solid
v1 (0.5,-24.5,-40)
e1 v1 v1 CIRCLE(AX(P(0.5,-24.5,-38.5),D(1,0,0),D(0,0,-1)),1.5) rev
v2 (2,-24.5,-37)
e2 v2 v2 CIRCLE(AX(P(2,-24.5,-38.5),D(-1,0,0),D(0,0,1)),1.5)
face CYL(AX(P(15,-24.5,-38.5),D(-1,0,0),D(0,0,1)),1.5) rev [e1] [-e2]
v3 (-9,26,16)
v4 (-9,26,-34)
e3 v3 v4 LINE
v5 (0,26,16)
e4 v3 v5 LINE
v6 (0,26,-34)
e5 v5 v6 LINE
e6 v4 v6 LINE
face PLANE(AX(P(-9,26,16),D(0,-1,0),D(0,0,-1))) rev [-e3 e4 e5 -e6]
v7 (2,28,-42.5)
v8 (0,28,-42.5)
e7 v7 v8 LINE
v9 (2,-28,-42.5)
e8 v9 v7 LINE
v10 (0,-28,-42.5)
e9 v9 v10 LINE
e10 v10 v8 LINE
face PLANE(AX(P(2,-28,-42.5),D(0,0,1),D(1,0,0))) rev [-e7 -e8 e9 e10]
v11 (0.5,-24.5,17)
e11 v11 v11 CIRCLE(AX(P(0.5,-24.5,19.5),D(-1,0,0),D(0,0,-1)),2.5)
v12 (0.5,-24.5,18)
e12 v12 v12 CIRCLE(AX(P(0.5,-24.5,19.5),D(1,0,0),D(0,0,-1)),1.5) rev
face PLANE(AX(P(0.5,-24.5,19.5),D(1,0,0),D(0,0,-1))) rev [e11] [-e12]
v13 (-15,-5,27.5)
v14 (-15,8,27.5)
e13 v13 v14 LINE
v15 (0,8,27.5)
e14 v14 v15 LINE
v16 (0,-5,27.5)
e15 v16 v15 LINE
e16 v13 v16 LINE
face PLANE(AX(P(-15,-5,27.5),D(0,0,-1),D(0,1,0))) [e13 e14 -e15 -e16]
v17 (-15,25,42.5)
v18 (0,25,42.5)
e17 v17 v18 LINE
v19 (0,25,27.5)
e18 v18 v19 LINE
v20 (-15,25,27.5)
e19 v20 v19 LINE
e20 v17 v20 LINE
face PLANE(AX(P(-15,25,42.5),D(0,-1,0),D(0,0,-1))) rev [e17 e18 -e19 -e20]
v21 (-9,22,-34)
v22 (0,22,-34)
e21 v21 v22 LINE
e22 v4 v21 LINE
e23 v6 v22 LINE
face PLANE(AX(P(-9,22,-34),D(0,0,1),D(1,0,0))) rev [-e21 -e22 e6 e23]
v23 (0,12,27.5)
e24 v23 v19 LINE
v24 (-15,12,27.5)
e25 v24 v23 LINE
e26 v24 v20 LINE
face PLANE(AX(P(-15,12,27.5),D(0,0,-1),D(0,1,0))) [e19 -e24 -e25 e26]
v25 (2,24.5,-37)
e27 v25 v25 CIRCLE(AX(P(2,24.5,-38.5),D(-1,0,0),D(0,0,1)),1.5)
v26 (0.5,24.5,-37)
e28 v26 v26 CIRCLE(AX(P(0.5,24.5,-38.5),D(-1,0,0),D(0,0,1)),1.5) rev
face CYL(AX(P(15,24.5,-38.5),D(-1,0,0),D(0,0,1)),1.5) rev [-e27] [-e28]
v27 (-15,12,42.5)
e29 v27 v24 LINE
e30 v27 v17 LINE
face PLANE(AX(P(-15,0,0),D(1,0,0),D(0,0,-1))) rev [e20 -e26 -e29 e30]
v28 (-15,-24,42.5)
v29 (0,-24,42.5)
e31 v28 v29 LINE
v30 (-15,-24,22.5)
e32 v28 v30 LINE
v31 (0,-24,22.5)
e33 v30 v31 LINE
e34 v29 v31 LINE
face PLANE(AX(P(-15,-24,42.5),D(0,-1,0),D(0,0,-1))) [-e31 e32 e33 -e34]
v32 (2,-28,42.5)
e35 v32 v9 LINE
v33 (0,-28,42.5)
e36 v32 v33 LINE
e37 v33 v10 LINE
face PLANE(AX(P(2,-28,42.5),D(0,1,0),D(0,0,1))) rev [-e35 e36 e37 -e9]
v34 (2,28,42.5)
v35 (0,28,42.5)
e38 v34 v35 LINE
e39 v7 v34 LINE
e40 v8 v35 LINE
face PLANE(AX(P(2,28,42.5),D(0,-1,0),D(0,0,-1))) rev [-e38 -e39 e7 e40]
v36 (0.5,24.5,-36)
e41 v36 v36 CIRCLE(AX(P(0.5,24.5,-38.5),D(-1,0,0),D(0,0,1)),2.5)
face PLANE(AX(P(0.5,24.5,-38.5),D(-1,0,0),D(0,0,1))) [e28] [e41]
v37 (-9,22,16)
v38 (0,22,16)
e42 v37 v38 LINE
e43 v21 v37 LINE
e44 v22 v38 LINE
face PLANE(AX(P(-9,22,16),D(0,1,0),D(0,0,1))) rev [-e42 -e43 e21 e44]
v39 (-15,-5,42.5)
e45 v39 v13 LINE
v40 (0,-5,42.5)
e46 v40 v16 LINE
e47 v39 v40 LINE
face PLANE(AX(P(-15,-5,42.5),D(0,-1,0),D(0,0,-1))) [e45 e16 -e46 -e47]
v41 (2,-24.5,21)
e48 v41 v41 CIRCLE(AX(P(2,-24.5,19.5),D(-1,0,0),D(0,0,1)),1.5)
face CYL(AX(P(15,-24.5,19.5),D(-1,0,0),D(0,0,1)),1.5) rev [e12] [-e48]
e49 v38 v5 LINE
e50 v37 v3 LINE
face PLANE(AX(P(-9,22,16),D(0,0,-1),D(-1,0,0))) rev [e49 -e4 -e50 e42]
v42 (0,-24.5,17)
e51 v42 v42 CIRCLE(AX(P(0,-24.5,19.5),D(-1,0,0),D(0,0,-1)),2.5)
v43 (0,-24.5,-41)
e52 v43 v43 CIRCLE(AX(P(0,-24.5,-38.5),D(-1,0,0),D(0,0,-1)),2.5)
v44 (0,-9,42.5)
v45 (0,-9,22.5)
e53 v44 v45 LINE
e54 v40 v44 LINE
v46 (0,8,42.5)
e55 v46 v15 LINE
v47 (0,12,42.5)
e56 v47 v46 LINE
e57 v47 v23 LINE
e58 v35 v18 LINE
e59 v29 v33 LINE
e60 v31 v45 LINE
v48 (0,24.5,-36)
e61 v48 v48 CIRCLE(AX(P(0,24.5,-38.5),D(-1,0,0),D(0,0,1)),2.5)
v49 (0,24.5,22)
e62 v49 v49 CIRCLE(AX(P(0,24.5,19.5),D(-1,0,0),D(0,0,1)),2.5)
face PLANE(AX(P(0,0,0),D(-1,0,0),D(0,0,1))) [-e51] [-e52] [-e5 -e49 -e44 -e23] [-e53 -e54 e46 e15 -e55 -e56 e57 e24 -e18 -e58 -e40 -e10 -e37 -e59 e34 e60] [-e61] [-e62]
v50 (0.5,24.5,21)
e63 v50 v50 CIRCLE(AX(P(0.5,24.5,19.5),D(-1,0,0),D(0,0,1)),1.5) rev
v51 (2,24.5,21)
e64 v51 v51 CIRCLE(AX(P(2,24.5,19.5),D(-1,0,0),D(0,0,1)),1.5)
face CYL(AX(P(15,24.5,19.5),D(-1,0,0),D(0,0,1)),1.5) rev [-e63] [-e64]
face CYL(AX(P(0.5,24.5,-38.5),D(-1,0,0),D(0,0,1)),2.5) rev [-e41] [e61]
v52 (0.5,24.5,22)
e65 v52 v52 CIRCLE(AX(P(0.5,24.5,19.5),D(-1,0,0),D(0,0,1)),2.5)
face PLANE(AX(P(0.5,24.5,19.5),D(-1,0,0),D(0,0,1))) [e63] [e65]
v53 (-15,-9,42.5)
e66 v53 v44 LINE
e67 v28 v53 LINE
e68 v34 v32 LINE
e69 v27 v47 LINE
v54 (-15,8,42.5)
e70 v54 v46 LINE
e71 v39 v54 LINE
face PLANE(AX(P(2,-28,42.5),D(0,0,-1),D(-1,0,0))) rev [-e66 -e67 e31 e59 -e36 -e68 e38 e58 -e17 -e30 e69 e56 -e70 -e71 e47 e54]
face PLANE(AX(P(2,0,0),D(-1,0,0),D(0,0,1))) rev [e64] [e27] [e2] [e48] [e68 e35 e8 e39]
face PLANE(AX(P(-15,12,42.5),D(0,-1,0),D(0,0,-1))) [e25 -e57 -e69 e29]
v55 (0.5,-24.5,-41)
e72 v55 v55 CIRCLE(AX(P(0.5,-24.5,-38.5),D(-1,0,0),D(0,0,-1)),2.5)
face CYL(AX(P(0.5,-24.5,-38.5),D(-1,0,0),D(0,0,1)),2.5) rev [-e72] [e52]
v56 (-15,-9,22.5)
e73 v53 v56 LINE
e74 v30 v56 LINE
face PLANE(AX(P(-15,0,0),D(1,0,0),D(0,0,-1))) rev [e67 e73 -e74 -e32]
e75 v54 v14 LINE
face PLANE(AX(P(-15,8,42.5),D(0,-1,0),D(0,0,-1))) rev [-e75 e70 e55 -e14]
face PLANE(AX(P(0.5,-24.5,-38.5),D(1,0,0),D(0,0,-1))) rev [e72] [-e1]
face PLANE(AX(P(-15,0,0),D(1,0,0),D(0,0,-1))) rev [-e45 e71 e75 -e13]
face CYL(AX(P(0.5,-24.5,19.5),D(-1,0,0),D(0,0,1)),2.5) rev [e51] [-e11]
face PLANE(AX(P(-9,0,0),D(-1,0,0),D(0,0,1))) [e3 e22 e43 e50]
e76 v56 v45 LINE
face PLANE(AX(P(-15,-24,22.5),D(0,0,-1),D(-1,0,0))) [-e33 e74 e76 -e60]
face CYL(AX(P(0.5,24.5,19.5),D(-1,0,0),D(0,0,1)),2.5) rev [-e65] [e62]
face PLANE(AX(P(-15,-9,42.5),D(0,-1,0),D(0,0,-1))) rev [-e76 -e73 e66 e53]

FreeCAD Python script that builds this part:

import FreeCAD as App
import Part
import Sketcher

V = App.Vector
Q = App.Units.Quantity


def add_polygon(sketch, points):
    """Adds a closed chain of lines whose ends are joined by coincident constraints."""
    first, n = sketch.GeometryCount, len(points)
    for a, b in zip(points, points[1:] + points[:1]):
        sketch.addGeometry(Part.LineSegment(App.Vector(*a, 0), App.Vector(*b, 0)), False)
    for i in range(n):
        sketch.addConstraint(Sketcher.Constraint("Coincident", first + i, 2, first + (i + 1) % n, 1))

doc = App.newDocument("Part")
body = doc.addObject("PartDesign::Body", "Body")

# Sketch on YZ plane
sketch1 = body.newObject("Sketcher::SketchObject", "Sketch")
sketch1.AttachmentSupport = (doc.getObject("YZ_Plane"), [""])
sketch1.MapMode = "FlatFace"
add_polygon(sketch1, [(28, 42.5), (-28, 42.5), (-28, -42.5), (28, -42.5)])  # lines 0-3
sketch1.addConstraint(Sketcher.Constraint("Horizontal", 0))
sketch1.addConstraint(Sketcher.Constraint("Vertical", 1))
sketch1.addConstraint(Sketcher.Constraint("Horizontal", 2))
sketch1.addConstraint(Sketcher.Constraint("Vertical", 3))
sketch1.addConstraint(Sketcher.Constraint("Symmetric", 0, 2, 2, 2, -1, 1))
sketch1.addConstraint(Sketcher.Constraint("DistanceX", 0, 2, 0, 1, Q("56 mm")))
sketch1.addConstraint(Sketcher.Constraint("DistanceY", 1, 2, 1, 1, Q("85 mm")))
pad1 = body.newObject("PartDesign::Pad", "Pad")
pad1.Profile = sketch1
pad1.Length = 2

# Sketch on YZ plane
sketch2 = body.newObject("Sketcher::SketchObject", "Sketch001")
sketch2.AttachmentSupport = (doc.getObject("YZ_Plane"), [""])
sketch2.MapMode = "FlatFace"
add_polygon(sketch2, [(-9, 22.5), (-24, 22.5), (-24, 42.5), (-9, 42.5)])  # lines 0-3
add_polygon(sketch2, [(8, 27.5), (-5, 27.5), (-5, 42.5), (8, 42.5)])  # lines 4-7
add_polygon(sketch2, [(25, 27.5), (12, 27.5), (12, 42.5), (25, 42.5)])  # lines 8-11
sketch2.addConstraint(Sketcher.Constraint("Horizontal", 0))
sketch2.addConstraint(Sketcher.Constraint("Vertical", 1))
sketch2.addConstraint(Sketcher.Constraint("Horizontal", 2))
sketch2.addConstraint(Sketcher.Constraint("Vertical", 3))
sketch2.addConstraint(Sketcher.Constraint("Horizontal", 4))
sketch2.addConstraint(Sketcher.Constraint("Vertical", 5))
sketch2.addConstraint(Sketcher.Constraint("Horizontal", 6))
sketch2.addConstraint(Sketcher.Constraint("Vertical", 7))
sketch2.addConstraint(Sketcher.Constraint("Horizontal", 8))
sketch2.addConstraint(Sketcher.Constraint("Vertical", 9))
sketch2.addConstraint(Sketcher.Constraint("Horizontal", 10))
sketch2.addConstraint(Sketcher.Constraint("Vertical", 11))
sketch2.addConstraint(Sketcher.Constraint("Horizontal", 2, 2, 5, 2))
sketch2.addConstraint(Sketcher.Constraint("Horizontal", 7, 2, 8, 2))
sketch2.addConstraint(Sketcher.Constraint("Horizontal", 6, 2, 9, 2))
sketch2.addConstraint(Sketcher.Constraint("Equal", 6, 8))
sketch2.addConstraint(Sketcher.Constraint("Equal", 2, 5))
sketch2.addConstraint(Sketcher.Constraint("DistanceX", 0, 2, 0, 1, Q("15 mm")))
sketch2.addConstraint(Sketcher.Constraint("DistanceX", 4, 2, 4, 1, Q("13 mm")))
sketch2.addConstraint(Sketcher.Constraint("DistanceY", 1, 1, 1, 2, Q("20 mm")))
sketch2.addConstraint(Sketcher.Constraint("DistanceX", 0, 2, -1, 1, Q("24 mm")))
sketch2.addConstraint(Sketcher.Constraint("DistanceX", 4, 2, -1, 1, Q("5 mm")))
sketch2.addConstraint(Sketcher.Constraint("DistanceX", -1, 1, 8, 2, Q("12 mm")))
sketch2.addConstraint(Sketcher.Constraint("DistanceY", -1, 1, 0, 2, Q("22.5 mm")))
pad2 = body.newObject("PartDesign::Pad", "Pad001")
pad2.Profile = sketch2
pad2.Length = 15
pad2.Reversed = True

# Sketch on YZ plane
sketch3 = body.newObject("Sketcher::SketchObject", "Sketch002")
sketch3.AttachmentSupport = (doc.getObject("YZ_Plane"), [""])
sketch3.MapMode = "FlatFace"
sketch3.addGeometry(Part.Circle(V(24.5, -38.5, 0), V(0, 0, 1), 1.5), False)
sketch3.addGeometry(Part.Circle(V(24.5, 19.5, 0), V(0, 0, 1), 1.5), False)
sketch3.addGeometry(Part.Circle(V(-24.5, -38.5, 0), V(0, 0, 1), 1.5), False)
sketch3.addGeometry(Part.Circle(V(-24.5, 19.5, 0), V(0, 0, 1), 1.5), False)
sketch3.addConstraint(Sketcher.Constraint("Equal", 0, 1))
sketch3.addConstraint(Sketcher.Constraint("Equal", 1, 2))
sketch3.addConstraint(Sketcher.Constraint("Equal", 2, 3))
sketch3.addConstraint(Sketcher.Constraint("Symmetric", 0, 3, 2, 3, -2))
sketch3.addConstraint(Sketcher.Constraint("Symmetric", 1, 3, 3, 3, -2))
sketch3.addConstraint(Sketcher.Constraint("Vertical", 0, 3, 1, 3))
sketch3.addConstraint(Sketcher.Constraint("Diameter", 0, Q("3 mm")))
sketch3.addConstraint(Sketcher.Constraint("DistanceY", 0, 3, 1, 3, Q("58 mm")))
sketch3.addConstraint(Sketcher.Constraint("DistanceX", 2, 3, 0, 3, Q("49 mm")))
sketch3.addConstraint(Sketcher.Constraint("DistanceY", 0, 3, -1, 1, Q("38.5 mm")))
pocket1 = body.newObject("PartDesign::Pocket", "Pocket")
pocket1.Profile = sketch3
pocket1.Length = 15
pocket1.Reversed = True

# Sketch on YZ plane
sketch4 = body.newObject("Sketcher::SketchObject", "Sketch003")
sketch4.AttachmentSupport = (doc.getObject("YZ_Plane"), [""])
sketch4.MapMode = "FlatFace"
sketch4.addGeometry(Part.Circle(V(24.5, 19.5, 0), V(0, 0, 1), 2.5), False)
sketch4.addGeometry(Part.Circle(V(24.5, -38.5, 0), V(0, 0, 1), 2.5), False)
sketch4.addGeometry(Part.Circle(V(-24.5, -38.5, 0), V(0, 0, 1), 2.5), False)
sketch4.addGeometry(Part.Circle(V(-24.5, 19.5, 0), V(0, 0, 1), 2.5), False)
sketch4.addConstraint(Sketcher.Constraint("Equal", 0, 1))
sketch4.addConstraint(Sketcher.Constraint("Equal", 1, 2))
sketch4.addConstraint(Sketcher.Constraint("Equal", 2, 3))
sketch4.addConstraint(Sketcher.Constraint("Symmetric", 1, 3, 2, 3, -2))
sketch4.addConstraint(Sketcher.Constraint("Symmetric", 0, 3, 3, 3, -2))
sketch4.addConstraint(Sketcher.Constraint("Vertical", 0, 3, 1, 3))
sketch4.addConstraint(Sketcher.Constraint("Diameter", 0, Q("5 mm")))
sketch4.addConstraint(Sketcher.Constraint("DistanceY", 1, 3, 0, 3, Q("58 mm")))
sketch4.addConstraint(Sketcher.Constraint("DistanceX", 2, 3, 1, 3, Q("49 mm")))
sketch4.addConstraint(Sketcher.Constraint("DistanceY", -1, 1, 0, 3, Q("19.5 mm")))
pocket2 = body.newObject("PartDesign::Pocket", "Pocket001")
pocket2.Profile = sketch4
pocket2.Length = 0.5
pocket2.Reversed = True

# Sketch on YZ plane
sketch5 = body.newObject("Sketcher::SketchObject", "Sketch004")
sketch5.AttachmentSupport = (doc.getObject("YZ_Plane"), [""])
sketch5.MapMode = "FlatFace"
add_polygon(sketch5, [(26, -34), (22, -34), (22, 16), (26, 16)])  # lines 0-3
sketch5.addConstraint(Sketcher.Constraint("Horizontal", 0))
sketch5.addConstraint(Sketcher.Constraint("Vertical", 1))
sketch5.addConstraint(Sketcher.Constraint("Horizontal", 2))
sketch5.addConstraint(Sketcher.Constraint("Vertical", 3))
sketch5.addConstraint(Sketcher.Constraint("DistanceX", 0, 2, 0, 1, Q("4 mm")))
sketch5.addConstraint(Sketcher.Constraint("DistanceY", 1, 1, 1, 2, Q("50 mm")))
sketch5.addConstraint(Sketcher.Constraint("DistanceX", -1, 1, 0, 2, Q("22 mm")))
sketch5.addConstraint(Sketcher.Constraint("DistanceY", 0, 2, -1, 1, Q("34 mm")))
pad3 = body.newObject("PartDesign::Pad", "Pad002")
pad3.Profile = sketch5
pad3.Length = 9
pad3.Reversed = True

doc.recompute()
